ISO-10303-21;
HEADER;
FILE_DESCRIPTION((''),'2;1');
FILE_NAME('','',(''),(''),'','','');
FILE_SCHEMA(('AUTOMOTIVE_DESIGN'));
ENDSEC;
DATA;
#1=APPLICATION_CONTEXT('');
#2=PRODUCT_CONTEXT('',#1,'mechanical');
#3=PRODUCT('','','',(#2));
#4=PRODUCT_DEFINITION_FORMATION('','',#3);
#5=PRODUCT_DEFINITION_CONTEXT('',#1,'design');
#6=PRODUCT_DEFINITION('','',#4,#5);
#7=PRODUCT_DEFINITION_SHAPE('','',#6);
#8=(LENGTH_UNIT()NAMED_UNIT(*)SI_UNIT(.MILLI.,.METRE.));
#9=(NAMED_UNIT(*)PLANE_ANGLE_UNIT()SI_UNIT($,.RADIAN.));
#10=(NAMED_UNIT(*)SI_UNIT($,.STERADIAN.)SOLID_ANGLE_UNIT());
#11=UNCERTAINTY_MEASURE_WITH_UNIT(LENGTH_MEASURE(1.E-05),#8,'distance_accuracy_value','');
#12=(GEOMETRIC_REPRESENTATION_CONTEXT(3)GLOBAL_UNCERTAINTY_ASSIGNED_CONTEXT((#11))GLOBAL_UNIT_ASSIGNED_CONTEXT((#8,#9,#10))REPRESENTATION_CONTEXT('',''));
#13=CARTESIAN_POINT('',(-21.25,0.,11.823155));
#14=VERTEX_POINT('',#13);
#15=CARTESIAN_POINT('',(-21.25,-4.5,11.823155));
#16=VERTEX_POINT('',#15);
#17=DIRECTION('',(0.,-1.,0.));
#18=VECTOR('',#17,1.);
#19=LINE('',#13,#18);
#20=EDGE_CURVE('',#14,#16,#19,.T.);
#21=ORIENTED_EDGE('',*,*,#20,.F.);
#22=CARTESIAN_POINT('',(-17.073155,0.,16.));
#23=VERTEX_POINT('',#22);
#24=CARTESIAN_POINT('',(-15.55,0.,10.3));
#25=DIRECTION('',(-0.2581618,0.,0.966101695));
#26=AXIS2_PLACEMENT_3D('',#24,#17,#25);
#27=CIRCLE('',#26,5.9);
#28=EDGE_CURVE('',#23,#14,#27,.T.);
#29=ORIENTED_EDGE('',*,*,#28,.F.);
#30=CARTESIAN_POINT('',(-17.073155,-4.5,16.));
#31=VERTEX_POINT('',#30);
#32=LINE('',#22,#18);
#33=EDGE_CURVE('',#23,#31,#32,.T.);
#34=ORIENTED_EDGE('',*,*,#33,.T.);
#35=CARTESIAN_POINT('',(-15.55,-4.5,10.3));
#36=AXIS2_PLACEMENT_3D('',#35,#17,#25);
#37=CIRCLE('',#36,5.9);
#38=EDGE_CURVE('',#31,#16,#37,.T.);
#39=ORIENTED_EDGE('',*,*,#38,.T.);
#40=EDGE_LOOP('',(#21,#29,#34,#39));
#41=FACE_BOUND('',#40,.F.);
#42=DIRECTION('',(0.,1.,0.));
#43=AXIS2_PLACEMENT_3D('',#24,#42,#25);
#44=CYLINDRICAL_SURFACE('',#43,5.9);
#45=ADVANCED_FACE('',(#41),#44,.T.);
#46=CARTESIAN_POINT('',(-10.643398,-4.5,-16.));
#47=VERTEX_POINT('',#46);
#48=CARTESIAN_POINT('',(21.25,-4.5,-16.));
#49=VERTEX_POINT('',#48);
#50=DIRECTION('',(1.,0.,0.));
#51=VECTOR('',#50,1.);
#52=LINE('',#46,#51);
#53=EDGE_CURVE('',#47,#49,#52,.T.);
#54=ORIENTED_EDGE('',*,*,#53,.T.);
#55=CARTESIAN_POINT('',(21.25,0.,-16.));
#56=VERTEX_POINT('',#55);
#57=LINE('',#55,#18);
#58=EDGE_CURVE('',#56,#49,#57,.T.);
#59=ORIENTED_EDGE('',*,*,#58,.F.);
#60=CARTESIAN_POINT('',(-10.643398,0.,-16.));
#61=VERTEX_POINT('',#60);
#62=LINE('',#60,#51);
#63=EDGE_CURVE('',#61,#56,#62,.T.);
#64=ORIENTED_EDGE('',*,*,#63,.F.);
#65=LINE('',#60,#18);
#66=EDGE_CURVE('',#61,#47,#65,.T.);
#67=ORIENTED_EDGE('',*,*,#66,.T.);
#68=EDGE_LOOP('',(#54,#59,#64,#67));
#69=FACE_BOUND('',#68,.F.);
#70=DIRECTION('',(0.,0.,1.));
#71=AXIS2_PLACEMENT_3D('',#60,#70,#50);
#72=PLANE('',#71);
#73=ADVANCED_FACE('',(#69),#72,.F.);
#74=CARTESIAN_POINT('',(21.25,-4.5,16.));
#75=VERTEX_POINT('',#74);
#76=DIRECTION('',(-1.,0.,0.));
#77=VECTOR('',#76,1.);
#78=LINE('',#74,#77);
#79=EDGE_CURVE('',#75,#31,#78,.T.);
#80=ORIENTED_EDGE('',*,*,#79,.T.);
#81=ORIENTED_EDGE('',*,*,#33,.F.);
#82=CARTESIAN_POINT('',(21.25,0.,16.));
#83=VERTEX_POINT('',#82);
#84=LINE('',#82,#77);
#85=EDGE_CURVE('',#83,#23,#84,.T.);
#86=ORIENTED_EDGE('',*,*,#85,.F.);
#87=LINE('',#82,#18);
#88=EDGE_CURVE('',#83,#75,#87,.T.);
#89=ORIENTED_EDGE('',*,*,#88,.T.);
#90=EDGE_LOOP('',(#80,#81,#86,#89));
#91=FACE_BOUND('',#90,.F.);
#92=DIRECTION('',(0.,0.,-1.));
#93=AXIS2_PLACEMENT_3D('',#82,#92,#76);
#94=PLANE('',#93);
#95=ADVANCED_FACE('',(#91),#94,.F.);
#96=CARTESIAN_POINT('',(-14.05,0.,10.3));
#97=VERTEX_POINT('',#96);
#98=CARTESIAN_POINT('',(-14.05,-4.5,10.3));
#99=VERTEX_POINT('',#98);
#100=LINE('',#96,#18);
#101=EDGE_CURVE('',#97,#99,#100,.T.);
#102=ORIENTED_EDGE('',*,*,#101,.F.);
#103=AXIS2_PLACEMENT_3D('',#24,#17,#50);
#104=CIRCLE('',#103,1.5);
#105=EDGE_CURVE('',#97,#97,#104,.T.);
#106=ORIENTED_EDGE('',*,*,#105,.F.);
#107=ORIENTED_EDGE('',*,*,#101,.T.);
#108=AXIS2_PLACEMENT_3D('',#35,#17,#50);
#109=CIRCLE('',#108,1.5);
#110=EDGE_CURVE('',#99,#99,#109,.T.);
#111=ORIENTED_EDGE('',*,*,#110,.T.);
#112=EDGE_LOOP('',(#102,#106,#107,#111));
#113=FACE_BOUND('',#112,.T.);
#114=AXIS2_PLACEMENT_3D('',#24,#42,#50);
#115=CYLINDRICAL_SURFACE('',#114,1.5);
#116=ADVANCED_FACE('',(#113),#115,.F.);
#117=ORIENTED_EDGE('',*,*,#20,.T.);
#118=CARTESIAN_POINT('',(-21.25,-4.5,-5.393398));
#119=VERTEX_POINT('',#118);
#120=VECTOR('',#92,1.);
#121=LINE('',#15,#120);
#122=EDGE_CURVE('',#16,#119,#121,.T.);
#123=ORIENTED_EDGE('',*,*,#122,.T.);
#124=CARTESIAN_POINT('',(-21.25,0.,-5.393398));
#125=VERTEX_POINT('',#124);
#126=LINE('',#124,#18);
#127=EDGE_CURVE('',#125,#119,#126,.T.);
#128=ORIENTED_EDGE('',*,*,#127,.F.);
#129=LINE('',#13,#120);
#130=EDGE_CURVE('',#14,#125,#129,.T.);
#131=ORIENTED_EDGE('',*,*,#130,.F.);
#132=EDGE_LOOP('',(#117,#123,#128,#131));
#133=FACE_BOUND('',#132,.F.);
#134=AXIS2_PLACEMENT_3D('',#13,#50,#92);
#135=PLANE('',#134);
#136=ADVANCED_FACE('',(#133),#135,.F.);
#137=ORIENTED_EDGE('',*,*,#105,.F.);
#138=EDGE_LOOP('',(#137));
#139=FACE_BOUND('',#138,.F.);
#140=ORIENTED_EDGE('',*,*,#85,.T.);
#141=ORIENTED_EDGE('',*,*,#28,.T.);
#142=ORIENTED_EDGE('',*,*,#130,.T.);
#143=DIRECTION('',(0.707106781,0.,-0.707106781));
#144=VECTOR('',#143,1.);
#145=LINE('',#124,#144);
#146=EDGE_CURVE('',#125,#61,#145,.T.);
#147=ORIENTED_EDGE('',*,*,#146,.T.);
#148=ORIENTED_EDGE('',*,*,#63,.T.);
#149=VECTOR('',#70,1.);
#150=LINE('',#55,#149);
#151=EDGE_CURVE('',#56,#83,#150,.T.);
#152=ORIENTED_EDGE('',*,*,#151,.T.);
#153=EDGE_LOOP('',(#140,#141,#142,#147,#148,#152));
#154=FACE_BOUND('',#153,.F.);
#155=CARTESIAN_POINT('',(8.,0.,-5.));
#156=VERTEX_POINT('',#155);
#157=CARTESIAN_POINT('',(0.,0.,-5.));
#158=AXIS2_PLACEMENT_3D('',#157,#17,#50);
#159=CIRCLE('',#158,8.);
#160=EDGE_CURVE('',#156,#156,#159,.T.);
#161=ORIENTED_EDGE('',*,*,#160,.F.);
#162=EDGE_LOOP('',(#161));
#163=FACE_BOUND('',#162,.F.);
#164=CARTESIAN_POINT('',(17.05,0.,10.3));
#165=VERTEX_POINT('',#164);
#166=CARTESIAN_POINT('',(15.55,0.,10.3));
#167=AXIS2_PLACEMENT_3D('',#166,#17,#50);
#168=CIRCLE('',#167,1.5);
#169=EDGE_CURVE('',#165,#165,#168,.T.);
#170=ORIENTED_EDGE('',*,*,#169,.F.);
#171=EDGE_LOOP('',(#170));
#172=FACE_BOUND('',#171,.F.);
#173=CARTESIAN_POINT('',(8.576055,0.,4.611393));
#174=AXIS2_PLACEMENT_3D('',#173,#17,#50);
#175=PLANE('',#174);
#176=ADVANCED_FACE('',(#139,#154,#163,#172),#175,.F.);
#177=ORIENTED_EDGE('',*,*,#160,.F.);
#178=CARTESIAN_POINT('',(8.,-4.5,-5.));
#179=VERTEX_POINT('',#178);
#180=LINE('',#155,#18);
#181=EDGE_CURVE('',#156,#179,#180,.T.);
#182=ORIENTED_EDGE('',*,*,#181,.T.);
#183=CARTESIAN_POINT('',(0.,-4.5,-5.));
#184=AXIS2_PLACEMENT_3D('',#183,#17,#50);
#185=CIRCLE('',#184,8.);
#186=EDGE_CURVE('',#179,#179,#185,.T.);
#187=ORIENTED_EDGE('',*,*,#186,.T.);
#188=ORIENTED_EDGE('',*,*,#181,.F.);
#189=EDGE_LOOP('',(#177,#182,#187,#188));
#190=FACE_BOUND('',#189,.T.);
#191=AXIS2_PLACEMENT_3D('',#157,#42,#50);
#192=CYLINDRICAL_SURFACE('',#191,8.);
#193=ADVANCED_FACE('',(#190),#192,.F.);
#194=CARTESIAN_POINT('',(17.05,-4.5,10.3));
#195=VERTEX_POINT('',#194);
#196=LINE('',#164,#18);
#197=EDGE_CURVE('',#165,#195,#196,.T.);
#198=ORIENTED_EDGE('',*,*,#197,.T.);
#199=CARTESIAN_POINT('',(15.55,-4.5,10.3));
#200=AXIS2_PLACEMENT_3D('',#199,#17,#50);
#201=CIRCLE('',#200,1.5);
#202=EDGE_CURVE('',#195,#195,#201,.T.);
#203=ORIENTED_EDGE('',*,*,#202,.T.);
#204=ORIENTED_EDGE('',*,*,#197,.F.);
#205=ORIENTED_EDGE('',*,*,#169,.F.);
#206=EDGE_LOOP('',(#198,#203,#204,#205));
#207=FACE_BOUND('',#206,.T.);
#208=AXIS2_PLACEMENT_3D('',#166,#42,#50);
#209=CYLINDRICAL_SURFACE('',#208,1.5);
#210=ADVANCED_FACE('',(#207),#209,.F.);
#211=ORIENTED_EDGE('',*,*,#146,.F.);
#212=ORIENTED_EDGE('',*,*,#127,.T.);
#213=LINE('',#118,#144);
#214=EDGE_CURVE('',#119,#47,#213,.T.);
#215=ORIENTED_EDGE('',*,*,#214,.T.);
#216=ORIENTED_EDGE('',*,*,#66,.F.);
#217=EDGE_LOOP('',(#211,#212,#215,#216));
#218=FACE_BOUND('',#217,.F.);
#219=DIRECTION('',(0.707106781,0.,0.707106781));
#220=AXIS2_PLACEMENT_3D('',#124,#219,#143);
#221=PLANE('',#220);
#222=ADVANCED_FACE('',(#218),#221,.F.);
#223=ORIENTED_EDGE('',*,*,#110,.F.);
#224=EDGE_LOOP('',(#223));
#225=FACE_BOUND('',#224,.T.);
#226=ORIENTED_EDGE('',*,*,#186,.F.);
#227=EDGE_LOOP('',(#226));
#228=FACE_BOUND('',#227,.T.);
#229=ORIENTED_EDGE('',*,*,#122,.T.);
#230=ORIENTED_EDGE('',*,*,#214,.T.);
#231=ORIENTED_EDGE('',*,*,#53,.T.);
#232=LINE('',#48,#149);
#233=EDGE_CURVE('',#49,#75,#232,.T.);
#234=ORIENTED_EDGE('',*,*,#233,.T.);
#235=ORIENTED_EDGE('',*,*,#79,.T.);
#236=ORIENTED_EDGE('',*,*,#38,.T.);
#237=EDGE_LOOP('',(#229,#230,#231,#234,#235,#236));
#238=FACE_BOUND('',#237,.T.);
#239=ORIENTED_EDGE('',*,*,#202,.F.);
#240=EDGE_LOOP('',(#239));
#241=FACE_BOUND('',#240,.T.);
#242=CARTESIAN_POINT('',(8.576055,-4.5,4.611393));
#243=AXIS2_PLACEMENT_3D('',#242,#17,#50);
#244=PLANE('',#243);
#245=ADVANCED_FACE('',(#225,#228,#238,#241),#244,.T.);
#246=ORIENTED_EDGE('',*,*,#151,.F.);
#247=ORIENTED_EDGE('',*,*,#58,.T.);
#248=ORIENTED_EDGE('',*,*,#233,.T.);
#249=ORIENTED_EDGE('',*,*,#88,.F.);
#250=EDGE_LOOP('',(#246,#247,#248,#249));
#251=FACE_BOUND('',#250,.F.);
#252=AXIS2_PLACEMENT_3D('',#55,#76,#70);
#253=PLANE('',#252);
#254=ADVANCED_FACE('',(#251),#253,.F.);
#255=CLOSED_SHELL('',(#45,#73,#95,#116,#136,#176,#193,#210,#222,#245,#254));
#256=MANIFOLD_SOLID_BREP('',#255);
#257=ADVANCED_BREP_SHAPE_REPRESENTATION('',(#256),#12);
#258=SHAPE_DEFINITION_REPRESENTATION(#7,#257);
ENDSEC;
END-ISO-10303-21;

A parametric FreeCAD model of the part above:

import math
import FreeCAD as App
import Part
import Sketcher
from FreeCAD import Vector
Q = App.Units.Quantity

doc = App.newDocument("Part")
body = doc.addObject("PartDesign::Body", "Body")

# Sketch on XZ plane
sketch1 = body.newObject("Sketcher::SketchObject", "Sketch")
sketch1.AttachmentSupport = (doc.getObject("XZ_Plane"), [""])
sketch1.MapMode = "FlatFace"
sketch1.addGeometry([
    Part.LineSegment(Vector(21.2, -16, 0), Vector(21.2, 16, 0)),  # 0
    Part.LineSegment(Vector(21.2, 16, 0), Vector(-17.1, 16, 0)),  # 1
    Part.ArcOfCircle(Part.Circle(Vector(-15.6, 10.3, 0), Vector(0, 0, 1), 5.9), math.radians(105), math.radians(165)),  # 2
    Part.LineSegment(Vector(-21.2, 11.8, 0), Vector(-21.2, -5.4, 0)),  # 3
    Part.LineSegment(Vector(-21.2, -5.4, 0), Vector(-10.6, -16, 0)),  # 4
    Part.LineSegment(Vector(-10.6, -16, 0), Vector(21.2, -16, 0)),  # 5
    Part.Circle(Vector(0, -5, 0), Vector(0, 0, 1), 8),  # 6
    Part.Circle(Vector(-15.6, 10.3, 0), Vector(0, 0, 1), 1.5),  # 7
    Part.Circle(Vector(15.6, 10.3, 0), Vector(0, 0, 1), 1.5),  # 8
], False)
sketch1.addConstraint([
    Sketcher.Constraint("Coincident", 0, 2, 1, 1),
    Sketcher.Constraint("Coincident", 1, 2, 2, 1),
    Sketcher.Constraint("Coincident", 2, 2, 3, 1),
    Sketcher.Constraint("Coincident", 3, 2, 4, 1),
    Sketcher.Constraint("Coincident", 4, 2, 5, 1),
    Sketcher.Constraint("Coincident", 5, 2, 0, 1),
    Sketcher.Constraint("Vertical", 0),
    Sketcher.Constraint("Horizontal", 1),
    Sketcher.Constraint("Vertical", 3),
    Sketcher.Constraint("Horizontal", 5),
    Sketcher.Constraint("Coincident", 7, 3, 2, 3),
    Sketcher.Constraint("Equal", 7, 8),
    Sketcher.Constraint("Symmetric", 2, 3, 8, 3, -2),
    Sketcher.Constraint("PointOnObject", 6, 3, -2),
    Sketcher.Constraint("Diameter", 6, Q("16 mm")),
    Sketcher.Constraint("Diameter", 7, Q("3 mm")),
    Sketcher.Constraint("Radius", 2, Q("5.9 mm")),
    Sketcher.Constraint("DistanceY", 0, 1, 0, 2, Q("32 mm")),
    Sketcher.Constraint("Angle", 4, Q("-45 deg")),
    Sketcher.Constraint("Distance", 4, Q("15 mm")),
    Sketcher.Constraint("DistanceY", 6, 3, -1, 1, Q("5 mm")),
    Sketcher.Constraint("DistanceY", -1, 1, 0, 2, Q("16 mm")),
    Sketcher.Constraint("DistanceY", -1, 1, 2, 3, Q("10.3 mm")),
    Sketcher.Constraint("DistanceX", 2, 3, 8, 3, Q("31.1 mm")),
    Sketcher.Constraint("DistanceX", 8, 3, 0, 2, Q("5.7 mm")),
    Sketcher.Constraint("DistanceX", 2, 2, 2, 3, Q("5.7 mm")),
])
pad1 = body.newObject("PartDesign::Pad", "Pad")
pad1.Profile = sketch1
pad1.Length = 4.5

doc.recompute()
